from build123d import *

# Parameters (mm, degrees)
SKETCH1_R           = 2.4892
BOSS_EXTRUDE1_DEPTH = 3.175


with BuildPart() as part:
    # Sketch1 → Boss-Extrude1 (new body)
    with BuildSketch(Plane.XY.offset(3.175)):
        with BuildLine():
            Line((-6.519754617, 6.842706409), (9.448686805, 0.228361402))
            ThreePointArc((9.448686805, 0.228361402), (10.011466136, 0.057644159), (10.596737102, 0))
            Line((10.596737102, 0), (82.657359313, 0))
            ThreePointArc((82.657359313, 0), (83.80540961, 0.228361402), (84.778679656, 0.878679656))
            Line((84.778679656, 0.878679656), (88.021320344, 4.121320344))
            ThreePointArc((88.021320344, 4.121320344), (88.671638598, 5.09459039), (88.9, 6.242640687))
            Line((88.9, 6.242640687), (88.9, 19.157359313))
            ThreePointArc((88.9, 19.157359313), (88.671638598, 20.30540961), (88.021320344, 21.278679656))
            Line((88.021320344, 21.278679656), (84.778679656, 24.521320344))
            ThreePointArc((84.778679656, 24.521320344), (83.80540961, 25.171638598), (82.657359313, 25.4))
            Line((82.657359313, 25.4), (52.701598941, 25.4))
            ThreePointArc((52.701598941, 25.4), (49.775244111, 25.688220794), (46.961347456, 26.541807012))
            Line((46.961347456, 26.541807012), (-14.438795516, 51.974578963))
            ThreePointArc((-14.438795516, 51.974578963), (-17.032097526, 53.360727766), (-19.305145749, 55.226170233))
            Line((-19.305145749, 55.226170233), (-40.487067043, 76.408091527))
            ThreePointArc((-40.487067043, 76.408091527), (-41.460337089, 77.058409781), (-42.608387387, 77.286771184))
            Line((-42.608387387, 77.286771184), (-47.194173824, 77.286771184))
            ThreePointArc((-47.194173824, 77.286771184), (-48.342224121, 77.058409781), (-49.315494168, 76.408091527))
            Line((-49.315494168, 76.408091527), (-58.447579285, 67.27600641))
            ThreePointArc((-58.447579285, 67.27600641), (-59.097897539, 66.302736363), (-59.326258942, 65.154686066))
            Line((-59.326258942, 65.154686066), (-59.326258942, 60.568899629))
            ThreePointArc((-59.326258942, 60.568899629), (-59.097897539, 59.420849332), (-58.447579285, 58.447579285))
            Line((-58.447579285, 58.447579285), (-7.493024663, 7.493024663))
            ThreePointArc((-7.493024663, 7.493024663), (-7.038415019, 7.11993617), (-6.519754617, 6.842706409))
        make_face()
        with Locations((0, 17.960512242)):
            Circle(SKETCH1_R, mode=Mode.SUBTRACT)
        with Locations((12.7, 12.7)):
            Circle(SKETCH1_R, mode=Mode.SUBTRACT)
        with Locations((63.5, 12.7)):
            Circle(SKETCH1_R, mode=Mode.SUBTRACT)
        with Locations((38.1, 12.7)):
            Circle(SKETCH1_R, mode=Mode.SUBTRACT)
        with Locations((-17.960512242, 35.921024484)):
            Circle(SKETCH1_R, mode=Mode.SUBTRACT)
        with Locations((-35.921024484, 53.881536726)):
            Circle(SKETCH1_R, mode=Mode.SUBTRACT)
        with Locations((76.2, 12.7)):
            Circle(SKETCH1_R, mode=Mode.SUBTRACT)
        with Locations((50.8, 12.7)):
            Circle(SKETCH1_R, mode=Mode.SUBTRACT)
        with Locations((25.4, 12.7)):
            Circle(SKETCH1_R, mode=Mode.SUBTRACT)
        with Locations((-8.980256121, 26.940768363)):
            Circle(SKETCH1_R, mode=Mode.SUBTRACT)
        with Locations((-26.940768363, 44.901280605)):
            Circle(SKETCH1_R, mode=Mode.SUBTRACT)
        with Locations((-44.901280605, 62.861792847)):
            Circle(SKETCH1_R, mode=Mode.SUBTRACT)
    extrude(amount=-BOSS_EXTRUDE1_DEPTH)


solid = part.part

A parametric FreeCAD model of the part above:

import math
import FreeCAD as App
import Part
import Sketcher

V = App.Vector
Q = App.Units.Quantity

doc = App.newDocument("Part")
body = doc.addObject("PartDesign::Body", "Body")

sketch1 = body.newObject("Sketcher::SketchObject", "Sketch")
sketch1.AttachmentSupport = (doc.getObject("XY_Plane"), [""])
sketch1.MapMode = "FlatFace"
sketch1.AttachmentOffset = App.Placement(V(0, 0, 3.175), App.Rotation())
sketch1.addGeometry(Part.LineSegment(V(-6.5, 6.8, 0), V(9.4, 0.2, 0)), False)
sketch1.addGeometry(Part.ArcOfCircle(Part.Circle(V(10.6, 3, 0), V(0, 0, 1), 3), math.radians(-112), math.radians(-90)), False)
sketch1.addGeometry(Part.LineSegment(V(10.6, 0, 0), V(82.7, 0, 0)), False)
sketch1.addGeometry(Part.ArcOfCircle(Part.Circle(V(82.7, 3, 0), V(0, 0, 1), 3), math.radians(-90), math.radians(-45)), False)
sketch1.addGeometry(Part.LineSegment(V(84.8, 0.9, 0), V(88, 4.1, 0)), False)
sketch1.addGeometry(Part.ArcOfCircle(Part.Circle(V(85.9, 6.2, 0), V(0, 0, 1), 3), math.radians(-45), math.radians(0)), False)
sketch1.addGeometry(Part.LineSegment(V(88.9, 6.2, 0), V(88.9, 19.2, 0)), False)
sketch1.addGeometry(Part.ArcOfCircle(Part.Circle(V(85.9, 19.2, 0), V(0, 0, 1), 3), math.radians(0), math.radians(45)), False)
sketch1.addGeometry(Part.LineSegment(V(88, 21.3, 0), V(84.8, 24.5, 0)), False)
sketch1.addGeometry(Part.ArcOfCircle(Part.Circle(V(82.7, 22.4, 0), V(0, 0, 1), 3), math.radians(45), math.radians(90)), False)
sketch1.addGeometry(Part.LineSegment(V(82.7, 25.4, 0), V(52.7, 25.4, 0)), False)
sketch1.addGeometry(Part.ArcOfCircle(Part.Circle(V(52.7, 40.4, 0), V(0, 0, 1), 15), math.radians(-112), math.radians(-90)), False)
sketch1.addGeometry(Part.LineSegment(V(47, 26.5, 0), V(-14.4, 52, 0)), False)
sketch1.addGeometry(Part.ArcOfCircle(Part.Circle(V(-8.7, 65.8, 0), V(0, 0, 1), 15), math.radians(-135), math.radians(-112)), False)
sketch1.addGeometry(Part.LineSegment(V(-19.3, 55.2, 0), V(-40.5, 76.4, 0)), False)
sketch1.addGeometry(Part.ArcOfCircle(Part.Circle(V(-42.6, 74.3, 0), V(0, 0, 1), 3), math.radians(45), math.radians(90)), False)
sketch1.addGeometry(Part.LineSegment(V(-42.6, 77.3, 0), V(-47.2, 77.3, 0)), False)
sketch1.addGeometry(Part.ArcOfCircle(Part.Circle(V(-47.2, 74.3, 0), V(0, 0, 1), 3), math.radians(90), math.radians(135)), False)
sketch1.addGeometry(Part.LineSegment(V(-49.3, 76.4, 0), V(-58.4, 67.3, 0)), False)
sketch1.addGeometry(Part.ArcOfCircle(Part.Circle(V(-56.3, 65.2, 0), V(0, 0, 1), 3), math.radians(135), math.radians(180)), False)
sketch1.addGeometry(Part.LineSegment(V(-59.3, 65.2, 0), V(-59.3, 60.6, 0)), False)
sketch1.addGeometry(Part.ArcOfCircle(Part.Circle(V(-56.3, 60.6, 0), V(0, 0, 1), 3), math.radians(-180), math.radians(-135)), False)
sketch1.addGeometry(Part.LineSegment(V(-58.4, 58.4, 0), V(-7.5, 7.5, 0)), False)
sketch1.addGeometry(Part.ArcOfCircle(Part.Circle(V(-5.4, 9.6, 0), V(0, 0, 1), 3), math.radians(-135), math.radians(-113)), False)
sketch1.addGeometry(Part.Circle(V(12.7, 12.7, 0), V(0, 0, 1), 2.5), False)
sketch1.addGeometry(Part.Circle(V(0, 18, 0), V(0, 0, 1), 2.5), False)
sketch1.addGeometry(Part.Circle(V(-18, 35.9, 0), V(0, 0, 1), 2.5), False)
sketch1.addGeometry(Part.Circle(V(-9, 26.9, 0), V(0, 0, 1), 2.5), False)
sketch1.addGeometry(Part.Circle(V(25.4, 12.7, 0), V(0, 0, 1), 2.5), False)
sketch1.addGeometry(Part.Circle(V(38.1, 12.7, 0), V(0, 0, 1), 2.5), False)
sketch1.addGeometry(Part.Circle(V(50.8, 12.7, 0), V(0, 0, 1), 2.5), False)
sketch1.addGeometry(Part.Circle(V(63.5, 12.7, 0), V(0, 0, 1), 2.5), False)
sketch1.addGeometry(Part.Circle(V(76.2, 12.7, 0), V(0, 0, 1), 2.5), False)
sketch1.addGeometry(Part.Circle(V(-26.9, 44.9, 0), V(0, 0, 1), 2.5), False)
sketch1.addGeometry(Part.Circle(V(-35.9, 53.9, 0), V(0, 0, 1), 2.5), False)
sketch1.addGeometry(Part.Circle(V(-44.9, 62.9, 0), V(0, 0, 1), 2.5), False)
sketch1.addConstraint(Sketcher.Constraint("Tangent", 0, 2, 1, 1))
sketch1.addConstraint(Sketcher.Constraint("Tangent", 1, 2, 2, 1))
sketch1.addConstraint(Sketcher.Constraint("Tangent", 2, 2, 3, 1))
sketch1.addConstraint(Sketcher.Constraint("Tangent", 3, 2, 4, 1))
sketch1.addConstraint(Sketcher.Constraint("Tangent", 4, 2, 5, 1))
sketch1.addConstraint(Sketcher.Constraint("Tangent", 5, 2, 6, 1))
sketch1.addConstraint(Sketcher.Constraint("Tangent", 6, 2, 7, 1))
sketch1.addConstraint(Sketcher.Constraint("Tangent", 7, 2, 8, 1))
sketch1.addConstraint(Sketcher.Constraint("Tangent", 8, 2, 9, 1))
sketch1.addConstraint(Sketcher.Constraint("Tangent", 9, 2, 10, 1))
sketch1.addConstraint(Sketcher.Constraint("Tangent", 10, 2, 11, 2))
sketch1.addConstraint(Sketcher.Constraint("Tangent", 11, 1, 12, 1))
sketch1.addConstraint(Sketcher.Constraint("Tangent", 12, 2, 13, 2))
sketch1.addConstraint(Sketcher.Constraint("Tangent", 13, 1, 14, 1))
sketch1.addConstraint(Sketcher.Constraint("Tangent", 14, 2, 15, 1))
sketch1.addConstraint(Sketcher.Constraint("Tangent", 15, 2, 16, 1))
sketch1.addConstraint(Sketcher.Constraint("Tangent", 16, 2, 17, 1))
sketch1.addConstraint(Sketcher.Constraint("Tangent", 17, 2, 18, 1))
sketch1.addConstraint(Sketcher.Constraint("Tangent", 18, 2, 19, 1))
sketch1.addConstraint(Sketcher.Constraint("Tangent", 19, 2, 20, 1))
sketch1.addConstraint(Sketcher.Constraint("Tangent", 20, 2, 21, 1))
sketch1.addConstraint(Sketcher.Constraint("Tangent", 21, 2, 22, 1))
sketch1.addConstraint(Sketcher.Constraint("Tangent", 22, 2, 23, 1))
sketch1.addConstraint(Sketcher.Constraint("Tangent", 23, 2, 0, 1))
sketch1.addConstraint(Sketcher.Constraint("Horizontal", 2))
sketch1.addConstraint(Sketcher.Constraint("Vertical", 6))
sketch1.addConstraint(Sketcher.Constraint("Horizontal", 10))
sketch1.addConstraint(Sketcher.Constraint("Horizontal", 16))
sketch1.addConstraint(Sketcher.Constraint("Vertical", 20))
sketch1.addConstraint(Sketcher.Constraint("Equal", 1, 3))
sketch1.addConstraint(Sketcher.Constraint("Equal", 3, 5))
sketch1.addConstraint(Sketcher.Constraint("Equal", 5, 7))
sketch1.addConstraint(Sketcher.Constraint("Equal", 7, 9))
sketch1.addConstraint(Sketcher.Constraint("Equal", 11, 13))
sketch1.addConstraint(Sketcher.Constraint("Equal", 9, 15))
sketch1.addConstraint(Sketcher.Constraint("Equal", 15, 17))
sketch1.addConstraint(Sketcher.Constraint("Equal", 17, 19))
sketch1.addConstraint(Sketcher.Constraint("Equal", 19, 21))
sketch1.addConstraint(Sketcher.Constraint("Equal", 21, 23))
sketch1.addConstraint(Sketcher.Constraint("Equal", 24, 25))
sketch1.addConstraint(Sketcher.Constraint("Equal", 25, 26))
sketch1.addConstraint(Sketcher.Constraint("Equal", 26, 27))
sketch1.addConstraint(Sketcher.Constraint("Equal", 27, 28))
sketch1.addConstraint(Sketcher.Constraint("Equal", 28, 29))
sketch1.addConstraint(Sketcher.Constraint("Equal", 29, 30))
sketch1.addConstraint(Sketcher.Constraint("Equal", 30, 31))
sketch1.addConstraint(Sketcher.Constraint("Equal", 31, 32))
sketch1.addConstraint(Sketcher.Constraint("Equal", 32, 33))
sketch1.addConstraint(Sketcher.Constraint("Equal", 33, 34))
sketch1.addConstraint(Sketcher.Constraint("Equal", 34, 35))
sketch1.addConstraint(Sketcher.Constraint("PointOnObject", 25, 3, -2))
sketch1.addConstraint(Sketcher.Constraint("PointOnObject", 1, 2, -1))
sketch1.addConstraint(Sketcher.Constraint("Perpendicular", 4, 8))
sketch1.addConstraint(Sketcher.Constraint("Parallel", 0, 12))
sketch1.addConstraint(Sketcher.Constraint("Parallel", 8, 14))
sketch1.addConstraint(Sketcher.Constraint("Perpendicular", 14, 18))
sketch1.addConstraint(Sketcher.Constraint("Perpendicular", 18, 22))
sketch1.addConstraint(Sketcher.Constraint("Horizontal", 24, 3, 28, 3))
sketch1.addConstraint(Sketcher.Constraint("Horizontal", 28, 3, 29, 3))
sketch1.addConstraint(Sketcher.Constraint("Horizontal", 29, 3, 30, 3))
sketch1.addConstraint(Sketcher.Constraint("Horizontal", 30, 3, 31, 3))
sketch1.addConstraint(Sketcher.Constraint("Horizontal", 31, 3, 32, 3))
sketch1.addConstraint(Sketcher.Constraint("Horizontal", 14, 2, 17, 2))
sketch1.addConstraint(Sketcher.Constraint("Vertical", 3, 3, 9, 3))
sketch1.addConstraint(Sketcher.Constraint("Equal", 16, 20))
sketch1.addConstraint(Sketcher.Constraint("Radius", 1, 3.0))
sketch1.addConstraint(Sketcher.Constraint("Radius", 11, 15.0))
sketch1.addConstraint(Sketcher.Constraint("Angle", 0, Q("-22.5 deg")))
sketch1.addConstraint(Sketcher.Constraint("Diameter", 24, 4.9784))
sketch1.addConstraint(Sketcher.Constraint("DistanceX", -1, 1, 5, 3, 85.9))
sketch1.addConstraint(Sketcher.Constraint("DistanceY", -1, 1, 9, 3, 22.4))
sketch1.addConstraint(Sketcher.Constraint("DistanceX", -1, 1, 24, 3, 12.7))
sketch1.addConstraint(Sketcher.Constraint("DistanceY", -1, 1, 24, 3, 12.7))
sketch1.addConstraint(Sketcher.Constraint("DistanceX", -1, 1, 28, 3, 25.4))
sketch1.addConstraint(Sketcher.Constraint("DistanceX", -1, 1, 29, 3, 38.1))
sketch1.addConstraint(Sketcher.Constraint("DistanceX", -1, 1, 30, 3, 50.8))
sketch1.addConstraint(Sketcher.Constraint("DistanceX", -1, 1, 31, 3, 63.5))
sketch1.addConstraint(Sketcher.Constraint("DistanceX", -1, 1, 32, 3, 76.2))
sketch1.addConstraint(Sketcher.Constraint("DistanceY", 13, 3, 15, 3, 8.453999))
sketch1.addConstraint(Sketcher.Constraint("DistanceX", 10, 2, 10, 1, 29.95576))
sketch1.addConstraint(Sketcher.Constraint("DistanceY", 6, 1, 6, 2, 12.914719))
sketch1.addConstraint(Sketcher.Constraint("DistanceY", -1, 1, 21, 3, 60.5689))
sketch1.addConstraint(Sketcher.Constraint("DistanceY", 33, 3, 12, 2, 7.073298))
sketch1.addConstraint(Sketcher.Constraint("DistanceY", 35, 3, 14, 2, 13.546299))
sketch1.addConstraint(Sketcher.Constraint("DistanceX", 18, 2, 35, 3, 13.546299))
sketch1.addConstraint(Sketcher.Constraint("Distance", 18, 12.914719))
sketch1.addConstraint(Sketcher.Constraint("DistanceX", 2, 1, 2, 2, 72.060622))
sketch1.addConstraint(Sketcher.Constraint("DistanceX", 16, 2, 16, 1, 4.585786))
sketch1.addConstraint(Sketcher.Constraint("DistanceY", -1, 1, 27, 3, 26.940768))
sketch1.addConstraint(Sketcher.Constraint("DistanceX", 33, 3, -1, 1, 26.940768))
sketch1.addConstraint(Sketcher.Constraint("DistanceY", 25, 3, 13, 3, 47.87226))
sketch1.addConstraint(Sketcher.Constraint("DistanceY", 23, 3, 26, 3, 26.306679))
sketch1.addConstraint(Sketcher.Constraint("DistanceX", 26, 3, 13, 3, 9.261968))
sketch1.addConstraint(Sketcher.Constraint("DistanceX", 27, 3, 23, 3, 3.608552))
sketch1.addConstraint(Sketcher.Constraint("DistanceX", 17, 3, 34, 3, 11.273149))
sketch1.addConstraint(Sketcher.Constraint("DistanceY", 34, 3, 19, 3, 11.273149))
pad1 = body.newObject("PartDesign::Pad", "Pad")
pad1.Profile = sketch1
pad1.Length = 3.175
pad1.Reversed = True

doc.recompute()
